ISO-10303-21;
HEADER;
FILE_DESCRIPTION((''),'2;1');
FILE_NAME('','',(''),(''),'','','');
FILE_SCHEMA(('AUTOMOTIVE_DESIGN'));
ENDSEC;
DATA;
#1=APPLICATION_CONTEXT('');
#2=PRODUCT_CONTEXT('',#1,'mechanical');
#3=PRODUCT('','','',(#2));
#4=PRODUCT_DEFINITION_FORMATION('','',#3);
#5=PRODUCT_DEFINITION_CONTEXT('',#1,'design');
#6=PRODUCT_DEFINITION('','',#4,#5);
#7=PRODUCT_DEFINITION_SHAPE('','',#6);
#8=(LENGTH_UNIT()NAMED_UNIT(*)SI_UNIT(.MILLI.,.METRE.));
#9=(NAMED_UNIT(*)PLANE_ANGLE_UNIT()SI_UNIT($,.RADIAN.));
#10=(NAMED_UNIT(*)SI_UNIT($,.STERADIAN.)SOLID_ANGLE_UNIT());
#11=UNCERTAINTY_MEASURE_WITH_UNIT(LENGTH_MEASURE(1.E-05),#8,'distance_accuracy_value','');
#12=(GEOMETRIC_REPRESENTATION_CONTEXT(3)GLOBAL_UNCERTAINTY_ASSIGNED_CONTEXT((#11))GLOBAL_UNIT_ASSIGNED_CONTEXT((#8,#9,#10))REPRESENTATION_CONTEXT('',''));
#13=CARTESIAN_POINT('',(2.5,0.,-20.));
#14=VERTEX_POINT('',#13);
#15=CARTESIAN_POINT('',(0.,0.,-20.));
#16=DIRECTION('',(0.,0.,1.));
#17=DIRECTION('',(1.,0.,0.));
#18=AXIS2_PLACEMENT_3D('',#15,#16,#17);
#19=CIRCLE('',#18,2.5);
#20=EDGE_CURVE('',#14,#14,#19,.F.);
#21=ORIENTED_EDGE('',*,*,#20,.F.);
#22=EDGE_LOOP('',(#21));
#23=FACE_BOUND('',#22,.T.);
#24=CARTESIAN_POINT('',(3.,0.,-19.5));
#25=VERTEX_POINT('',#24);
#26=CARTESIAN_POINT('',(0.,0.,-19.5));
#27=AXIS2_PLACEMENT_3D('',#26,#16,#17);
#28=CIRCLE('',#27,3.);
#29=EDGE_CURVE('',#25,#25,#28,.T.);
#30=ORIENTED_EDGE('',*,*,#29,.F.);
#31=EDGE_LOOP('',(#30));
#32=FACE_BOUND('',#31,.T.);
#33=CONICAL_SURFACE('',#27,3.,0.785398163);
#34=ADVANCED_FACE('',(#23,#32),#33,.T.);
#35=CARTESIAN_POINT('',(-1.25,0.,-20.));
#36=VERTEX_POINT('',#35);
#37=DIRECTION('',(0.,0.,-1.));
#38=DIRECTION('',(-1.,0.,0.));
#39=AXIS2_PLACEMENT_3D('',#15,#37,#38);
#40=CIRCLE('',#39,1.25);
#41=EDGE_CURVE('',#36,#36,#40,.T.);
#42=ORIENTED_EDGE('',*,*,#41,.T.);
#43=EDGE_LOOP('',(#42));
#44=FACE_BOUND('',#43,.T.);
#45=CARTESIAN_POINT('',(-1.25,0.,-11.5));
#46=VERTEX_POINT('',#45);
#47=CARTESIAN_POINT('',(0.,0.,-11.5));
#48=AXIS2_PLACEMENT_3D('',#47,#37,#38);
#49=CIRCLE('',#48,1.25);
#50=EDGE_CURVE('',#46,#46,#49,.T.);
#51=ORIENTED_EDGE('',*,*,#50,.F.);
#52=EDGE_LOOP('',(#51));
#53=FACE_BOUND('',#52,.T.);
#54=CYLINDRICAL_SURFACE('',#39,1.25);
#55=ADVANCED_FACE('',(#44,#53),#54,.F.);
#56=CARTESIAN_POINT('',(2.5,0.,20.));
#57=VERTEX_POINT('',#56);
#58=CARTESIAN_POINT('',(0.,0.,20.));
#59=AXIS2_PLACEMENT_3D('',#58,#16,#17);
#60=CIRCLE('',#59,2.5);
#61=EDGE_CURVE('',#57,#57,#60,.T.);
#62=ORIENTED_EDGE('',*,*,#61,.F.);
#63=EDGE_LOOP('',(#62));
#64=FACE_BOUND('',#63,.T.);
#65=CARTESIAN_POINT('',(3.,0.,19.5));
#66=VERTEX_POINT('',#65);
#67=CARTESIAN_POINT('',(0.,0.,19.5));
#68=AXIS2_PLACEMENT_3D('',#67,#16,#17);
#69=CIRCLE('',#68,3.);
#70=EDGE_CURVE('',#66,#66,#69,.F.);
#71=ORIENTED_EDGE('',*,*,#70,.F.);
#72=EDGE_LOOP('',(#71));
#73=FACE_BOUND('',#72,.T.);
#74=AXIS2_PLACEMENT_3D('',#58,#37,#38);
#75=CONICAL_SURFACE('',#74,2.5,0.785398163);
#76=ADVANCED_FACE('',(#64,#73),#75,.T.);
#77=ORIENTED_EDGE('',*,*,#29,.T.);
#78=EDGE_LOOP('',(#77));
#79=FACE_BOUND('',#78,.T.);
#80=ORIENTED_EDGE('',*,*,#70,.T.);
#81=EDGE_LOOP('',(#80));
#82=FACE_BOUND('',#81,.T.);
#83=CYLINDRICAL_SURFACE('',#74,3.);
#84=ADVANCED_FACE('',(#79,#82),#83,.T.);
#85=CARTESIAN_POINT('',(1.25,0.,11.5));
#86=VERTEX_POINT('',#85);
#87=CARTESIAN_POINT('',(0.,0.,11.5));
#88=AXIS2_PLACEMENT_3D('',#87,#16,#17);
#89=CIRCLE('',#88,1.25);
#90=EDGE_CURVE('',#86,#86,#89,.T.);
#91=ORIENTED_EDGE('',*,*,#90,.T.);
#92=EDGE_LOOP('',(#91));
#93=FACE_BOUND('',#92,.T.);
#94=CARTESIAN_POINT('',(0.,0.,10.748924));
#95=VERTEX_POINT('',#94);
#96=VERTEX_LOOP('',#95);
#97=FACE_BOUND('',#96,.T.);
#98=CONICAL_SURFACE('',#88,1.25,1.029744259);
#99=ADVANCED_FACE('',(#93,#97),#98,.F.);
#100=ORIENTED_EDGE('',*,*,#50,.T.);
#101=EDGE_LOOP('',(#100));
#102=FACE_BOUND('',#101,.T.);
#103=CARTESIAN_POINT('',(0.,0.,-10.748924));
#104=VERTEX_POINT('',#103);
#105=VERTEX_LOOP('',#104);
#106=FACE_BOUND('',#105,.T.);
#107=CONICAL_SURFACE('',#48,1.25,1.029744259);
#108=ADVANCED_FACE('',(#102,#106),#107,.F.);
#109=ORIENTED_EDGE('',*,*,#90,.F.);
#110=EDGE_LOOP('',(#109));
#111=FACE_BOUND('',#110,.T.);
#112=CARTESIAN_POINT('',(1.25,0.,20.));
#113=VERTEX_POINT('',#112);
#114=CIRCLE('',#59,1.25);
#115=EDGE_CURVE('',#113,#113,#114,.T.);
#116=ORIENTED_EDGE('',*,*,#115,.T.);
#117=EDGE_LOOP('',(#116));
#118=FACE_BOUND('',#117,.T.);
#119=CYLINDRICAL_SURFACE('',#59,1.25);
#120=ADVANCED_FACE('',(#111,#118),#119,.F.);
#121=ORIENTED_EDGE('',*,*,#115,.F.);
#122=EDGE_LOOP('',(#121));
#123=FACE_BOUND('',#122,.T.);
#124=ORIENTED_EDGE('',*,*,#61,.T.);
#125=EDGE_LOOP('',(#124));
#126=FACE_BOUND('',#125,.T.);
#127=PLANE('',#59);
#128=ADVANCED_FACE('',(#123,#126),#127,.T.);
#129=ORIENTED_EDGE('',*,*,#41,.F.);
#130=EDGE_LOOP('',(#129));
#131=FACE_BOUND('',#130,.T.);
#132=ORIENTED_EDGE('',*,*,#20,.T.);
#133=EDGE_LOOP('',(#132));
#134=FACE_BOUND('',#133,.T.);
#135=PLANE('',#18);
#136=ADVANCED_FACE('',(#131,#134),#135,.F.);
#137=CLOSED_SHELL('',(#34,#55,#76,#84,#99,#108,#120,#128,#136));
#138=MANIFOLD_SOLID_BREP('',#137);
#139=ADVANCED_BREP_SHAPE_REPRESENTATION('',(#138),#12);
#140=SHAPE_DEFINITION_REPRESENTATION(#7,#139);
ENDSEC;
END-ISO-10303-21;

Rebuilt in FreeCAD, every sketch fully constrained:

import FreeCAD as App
import Part
import Sketcher
Q = App.Units.Quantity


def edges_at(feature, points):
    """Names of the edges that pass closest to the given points."""
    edges = feature.Shape.Edges
    near = lambda p: min(range(len(edges)), key=lambda i: edges[i].distToShape(Part.Vertex(*p))[0])
    return sorted({f"Edge{near(p) + 1}" for p in points})


def add_polygon(sketch, points):
    """Adds a closed chain of lines whose ends are joined by coincident constraints."""
    first, n = sketch.GeometryCount, len(points)
    for a, b in zip(points, points[1:] + points[:1]):
        sketch.addGeometry(Part.LineSegment(App.Vector(*a, 0), App.Vector(*b, 0)), False)
    for i in range(n):
        sketch.addConstraint(Sketcher.Constraint("Coincident", first + i, 2, first + (i + 1) % n, 1))

doc = App.newDocument("Part")
params = doc.addObject("Spreadsheet::Sheet", "Params")
for row, (alias, value) in enumerate([
    ("sketch1_diameter", "6 mm"),
    ("pad1_length", "40 mm"),
    ("sketch2_height", "8.5 mm"),
    ("sketch2_width", "1.25 mm"),
    ("groove_angle", "360 deg"),
    ("chamfer_size", "0.5 mm"),
], start=1):
    params.set(f"A{row}", alias)
    params.set(f"B{row}", "=" + value)
    params.setAlias(f"B{row}", alias)

body = doc.addObject("PartDesign::Body", "Body")

sketch1 = body.newObject("Sketcher::SketchObject", "Sketch")
sketch1.AttachmentSupport = (doc.getObject("XY_Plane"), [""])
sketch1.MapMode = "FlatFace"
sketch1.addGeometry(Part.Circle(App.Vector(0, 0, 0), App.Vector(0, 0, 1), 3), False)
sketch1.addConstraint(Sketcher.Constraint("Coincident", 0, 3, -1, 1))
sketch1.addConstraint(Sketcher.Constraint("Diameter", 0, Q("6 mm")))
sketch1.setExpression("Constraints[1]", "Params.sketch1_diameter")
pad1 = body.newObject("PartDesign::Pad", "Pad")
pad1.Profile = sketch1
pad1.setExpression("Length", "Params.pad1_length")
pad1.Midplane = True

sketch2 = body.newObject("Sketcher::SketchObject", "Sketch001")
sketch2.AttachmentSupport = (doc.getObject("YZ_Plane"), [""])
sketch2.MapMode = "FlatFace"
add_polygon(sketch2, [(0, 10.7), (0, 20), (-1.2, 20), (-1.2, 11.5)])
sketch2.addConstraint(Sketcher.Constraint("Vertical", 0))
sketch2.addConstraint(Sketcher.Constraint("Horizontal", 1))
sketch2.addConstraint(Sketcher.Constraint("Vertical", 2))
sketch2.addConstraint(Sketcher.Constraint("PointOnObject", 0, 2, -2))
sketch2.addConstraint(Sketcher.Constraint("Angle", 3, Q("-31 deg")))
sketch2.addConstraint(Sketcher.Constraint("DistanceY", 2, 2, 2, 1, Q("8.5 mm")))
sketch2.addConstraint(Sketcher.Constraint("DistanceY", -1, 1, 0, 2, Q("20 mm")))
sketch2.addConstraint(Sketcher.Constraint("DistanceX", 1, 2, 1, 1, Q("1.25 mm")))
sketch2.setExpression("Constraints[9]", "Params.sketch2_height")
sketch2.setExpression("Constraints[11]", "Params.sketch2_width")
groove = body.newObject("PartDesign::Groove", "Groove")
groove.Profile = sketch2
groove.ReferenceAxis = (sketch2, ["V_Axis"])
groove.setExpression("Angle", "Params.groove_angle")
doc.recompute()

mirrored = body.newObject("PartDesign::Mirrored", "Mirrored")
mirrored.Originals = [groove]
mirrored.MirrorPlane = (doc.getObject("XY_Plane"), [""])
body.Tip = mirrored
doc.recompute()

chamfer = body.newObject("PartDesign::Chamfer", "Chamfer")
chamfer.Base = (mirrored, edges_at(mirrored, [(-3, 0, -20), (-3, 0, 20)]))
chamfer.setExpression("Size", "Params.chamfer_size")

doc.recompute()
